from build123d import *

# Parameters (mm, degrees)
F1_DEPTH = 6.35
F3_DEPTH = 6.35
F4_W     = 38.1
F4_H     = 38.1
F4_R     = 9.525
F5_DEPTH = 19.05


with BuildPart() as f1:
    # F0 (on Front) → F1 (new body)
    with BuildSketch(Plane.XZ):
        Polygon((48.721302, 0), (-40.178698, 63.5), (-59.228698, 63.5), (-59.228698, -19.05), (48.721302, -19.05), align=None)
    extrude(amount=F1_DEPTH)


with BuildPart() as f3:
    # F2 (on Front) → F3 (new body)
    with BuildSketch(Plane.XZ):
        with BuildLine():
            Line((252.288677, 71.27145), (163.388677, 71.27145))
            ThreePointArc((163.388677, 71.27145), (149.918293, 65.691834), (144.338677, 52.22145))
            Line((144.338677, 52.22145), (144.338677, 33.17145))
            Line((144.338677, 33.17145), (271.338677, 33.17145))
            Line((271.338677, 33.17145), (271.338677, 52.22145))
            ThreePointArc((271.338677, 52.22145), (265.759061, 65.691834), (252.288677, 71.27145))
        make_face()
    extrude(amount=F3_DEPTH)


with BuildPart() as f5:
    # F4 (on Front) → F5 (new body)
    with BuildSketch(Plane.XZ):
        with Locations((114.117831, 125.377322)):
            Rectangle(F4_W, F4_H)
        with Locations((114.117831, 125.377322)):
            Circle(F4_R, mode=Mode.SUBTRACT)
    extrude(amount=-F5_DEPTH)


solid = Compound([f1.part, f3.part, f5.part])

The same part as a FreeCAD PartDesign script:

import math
import FreeCAD as App
import Part
import Sketcher
from FreeCAD import Vector
Q = App.Units.Quantity


def add_polygon(sketch, points):
    """Adds a closed chain of lines whose ends are joined by coincident constraints."""
    first, n = sketch.GeometryCount, len(points)
    for a, b in zip(points, points[1:] + points[:1]):
        sketch.addGeometry(Part.LineSegment(App.Vector(*a, 0), App.Vector(*b, 0)), False)
    for i in range(n):
        sketch.addConstraint(Sketcher.Constraint("Coincident", first + i, 2, first + (i + 1) % n, 1))

doc = App.newDocument("Part")
body = doc.addObject("PartDesign::Body", "Body")

# Sketch on XZ plane
sketch1 = body.newObject("Sketcher::SketchObject", "Sketch")
sketch1.AttachmentSupport = (doc.getObject("XZ_Plane"), [""])
sketch1.MapMode = "FlatFace"
add_polygon(sketch1, [(48.721302, 0), (-40.178698, 63.5), (-59.228698, 63.5), (-59.228698, -19.05), (48.721302, -19.05)])  # lines 0-4
sketch1.addConstraint([
    Sketcher.Constraint("Horizontal", 1),
    Sketcher.Constraint("Vertical", 2),
    Sketcher.Constraint("Horizontal", 3),
    Sketcher.Constraint("Vertical", 4),
    Sketcher.Constraint("PointOnObject", 4, 2, -1),
    Sketcher.Constraint("Equal", 1, 4),
    Sketcher.Constraint("DistanceX", 1, 2, 1, 1, Q("0.75 in")),
    Sketcher.Constraint("DistanceX", 3, 1, 3, 2, Q("4.25 in")),
    Sketcher.Constraint("DistanceY", 2, 2, 2, 1, Q("3.25 in")),
    Sketcher.Constraint("DistanceX", 0, 2, -1, 1, 40.178698),
])
pad1 = body.newObject("PartDesign::Pad", "Pad")
pad1.Profile = sketch1
pad1.Length = Q("0.25 in")
body2 = doc.addObject("PartDesign::Body", "Body001")

# Sketch on XZ plane
sketch2 = body2.newObject("Sketcher::SketchObject", "Sketch001")
sketch2.AttachmentSupport = (doc.getObject("XZ_Plane001"), [""])
sketch2.MapMode = "FlatFace"
sketch2.addGeometry([
    Part.LineSegment(Vector(252.288677, 71.27145, 0), Vector(163.388677, 71.27145, 0)),  # 0
    Part.ArcOfCircle(Part.Circle(Vector(163.388678, 52.221449, 0), Vector(0, 0, 1), 19.050001), math.radians(90.000002), math.radians(179.999998)),  # 1
    Part.LineSegment(Vector(144.338677, 52.22145, 0), Vector(144.338677, 33.17145, 0)),  # 2
    Part.LineSegment(Vector(144.338677, 33.17145, 0), Vector(271.338677, 33.17145, 0)),  # 3
    Part.LineSegment(Vector(271.338677, 33.17145, 0), Vector(271.338677, 52.22145, 0)),  # 4
    Part.ArcOfCircle(Part.Circle(Vector(252.288676, 52.221449, 0), Vector(0, 0, 1), 19.050001), math.radians(0.000002), math.radians(89.999998)),  # 5
], False)
sketch2.addConstraint([
    Sketcher.Constraint("Tangent", 0, 2, 1, 1),
    Sketcher.Constraint("Tangent", 1, 2, 2, 1),
    Sketcher.Constraint("Coincident", 2, 2, 3, 1),
    Sketcher.Constraint("Coincident", 3, 2, 4, 1),
    Sketcher.Constraint("Tangent", 4, 2, 5, 1),
    Sketcher.Constraint("Tangent", 5, 2, 0, 1),
    Sketcher.Constraint("Horizontal", 0),
    Sketcher.Constraint("Vertical", 2),
    Sketcher.Constraint("Horizontal", 3),
    Sketcher.Constraint("Vertical", 4),
    Sketcher.Constraint("Equal", 1, 5),
    Sketcher.Constraint("DistanceX", 3, 1, 3, 2, Q("5 in")),
    Sketcher.Constraint("Radius", 1, Q("0.75 in")),
    Sketcher.Constraint("DistanceY", 2, 2, 2, 1, Q("0.75 in")),
    Sketcher.Constraint("DistanceY", -1, 1, 1, 3, 52.221449),
    Sketcher.Constraint("DistanceX", -1, 1, 1, 3, 163.388678),
])
pad2 = body2.newObject("PartDesign::Pad", "Pad001")
pad2.Profile = sketch2
pad2.Length = Q("0.25 in")
body3 = doc.addObject("PartDesign::Body", "Body002")

# Sketch on XZ plane
sketch3 = body3.newObject("Sketcher::SketchObject", "Sketch002")
sketch3.AttachmentSupport = (doc.getObject("XZ_Plane002"), [""])
sketch3.MapMode = "FlatFace"
add_polygon(sketch3, [(95.067831, 144.427322), (95.067831, 106.327322), (133.167831, 106.327322), (133.167831, 144.427322)])  # lines 0-3
sketch3.addGeometry(Part.Circle(Vector(114.117831, 125.377322, 0), Vector(0, 0, 1), 9.525), False)  # 4
sketch3.addConstraint([
    Sketcher.Constraint("Vertical", 0),
    Sketcher.Constraint("Horizontal", 1),
    Sketcher.Constraint("Vertical", 2),
    Sketcher.Constraint("Horizontal", 3),
    Sketcher.Constraint("Equal", 3, 0),
    Sketcher.Constraint("Diameter", 4, Q("0.75 in")),
    Sketcher.Constraint("DistanceX", 1, 1, 1, 2, Q("1.5 in")),
    Sketcher.Constraint("DistanceX", 0, 2, 4, 3, Q("0.75 in")),
    Sketcher.Constraint("DistanceY", 0, 2, 4, 3, Q("0.75 in")),
    Sketcher.Constraint("DistanceX", -1, 1, 4, 3, 114.117831),
    Sketcher.Constraint("DistanceY", -1, 1, 0, 2, 106.327322),
])
pad3 = body3.newObject("PartDesign::Pad", "Pad002")
pad3.Profile = sketch3
pad3.Length = Q("0.75 in")
pad3.Reversed = True

doc.recompute()
